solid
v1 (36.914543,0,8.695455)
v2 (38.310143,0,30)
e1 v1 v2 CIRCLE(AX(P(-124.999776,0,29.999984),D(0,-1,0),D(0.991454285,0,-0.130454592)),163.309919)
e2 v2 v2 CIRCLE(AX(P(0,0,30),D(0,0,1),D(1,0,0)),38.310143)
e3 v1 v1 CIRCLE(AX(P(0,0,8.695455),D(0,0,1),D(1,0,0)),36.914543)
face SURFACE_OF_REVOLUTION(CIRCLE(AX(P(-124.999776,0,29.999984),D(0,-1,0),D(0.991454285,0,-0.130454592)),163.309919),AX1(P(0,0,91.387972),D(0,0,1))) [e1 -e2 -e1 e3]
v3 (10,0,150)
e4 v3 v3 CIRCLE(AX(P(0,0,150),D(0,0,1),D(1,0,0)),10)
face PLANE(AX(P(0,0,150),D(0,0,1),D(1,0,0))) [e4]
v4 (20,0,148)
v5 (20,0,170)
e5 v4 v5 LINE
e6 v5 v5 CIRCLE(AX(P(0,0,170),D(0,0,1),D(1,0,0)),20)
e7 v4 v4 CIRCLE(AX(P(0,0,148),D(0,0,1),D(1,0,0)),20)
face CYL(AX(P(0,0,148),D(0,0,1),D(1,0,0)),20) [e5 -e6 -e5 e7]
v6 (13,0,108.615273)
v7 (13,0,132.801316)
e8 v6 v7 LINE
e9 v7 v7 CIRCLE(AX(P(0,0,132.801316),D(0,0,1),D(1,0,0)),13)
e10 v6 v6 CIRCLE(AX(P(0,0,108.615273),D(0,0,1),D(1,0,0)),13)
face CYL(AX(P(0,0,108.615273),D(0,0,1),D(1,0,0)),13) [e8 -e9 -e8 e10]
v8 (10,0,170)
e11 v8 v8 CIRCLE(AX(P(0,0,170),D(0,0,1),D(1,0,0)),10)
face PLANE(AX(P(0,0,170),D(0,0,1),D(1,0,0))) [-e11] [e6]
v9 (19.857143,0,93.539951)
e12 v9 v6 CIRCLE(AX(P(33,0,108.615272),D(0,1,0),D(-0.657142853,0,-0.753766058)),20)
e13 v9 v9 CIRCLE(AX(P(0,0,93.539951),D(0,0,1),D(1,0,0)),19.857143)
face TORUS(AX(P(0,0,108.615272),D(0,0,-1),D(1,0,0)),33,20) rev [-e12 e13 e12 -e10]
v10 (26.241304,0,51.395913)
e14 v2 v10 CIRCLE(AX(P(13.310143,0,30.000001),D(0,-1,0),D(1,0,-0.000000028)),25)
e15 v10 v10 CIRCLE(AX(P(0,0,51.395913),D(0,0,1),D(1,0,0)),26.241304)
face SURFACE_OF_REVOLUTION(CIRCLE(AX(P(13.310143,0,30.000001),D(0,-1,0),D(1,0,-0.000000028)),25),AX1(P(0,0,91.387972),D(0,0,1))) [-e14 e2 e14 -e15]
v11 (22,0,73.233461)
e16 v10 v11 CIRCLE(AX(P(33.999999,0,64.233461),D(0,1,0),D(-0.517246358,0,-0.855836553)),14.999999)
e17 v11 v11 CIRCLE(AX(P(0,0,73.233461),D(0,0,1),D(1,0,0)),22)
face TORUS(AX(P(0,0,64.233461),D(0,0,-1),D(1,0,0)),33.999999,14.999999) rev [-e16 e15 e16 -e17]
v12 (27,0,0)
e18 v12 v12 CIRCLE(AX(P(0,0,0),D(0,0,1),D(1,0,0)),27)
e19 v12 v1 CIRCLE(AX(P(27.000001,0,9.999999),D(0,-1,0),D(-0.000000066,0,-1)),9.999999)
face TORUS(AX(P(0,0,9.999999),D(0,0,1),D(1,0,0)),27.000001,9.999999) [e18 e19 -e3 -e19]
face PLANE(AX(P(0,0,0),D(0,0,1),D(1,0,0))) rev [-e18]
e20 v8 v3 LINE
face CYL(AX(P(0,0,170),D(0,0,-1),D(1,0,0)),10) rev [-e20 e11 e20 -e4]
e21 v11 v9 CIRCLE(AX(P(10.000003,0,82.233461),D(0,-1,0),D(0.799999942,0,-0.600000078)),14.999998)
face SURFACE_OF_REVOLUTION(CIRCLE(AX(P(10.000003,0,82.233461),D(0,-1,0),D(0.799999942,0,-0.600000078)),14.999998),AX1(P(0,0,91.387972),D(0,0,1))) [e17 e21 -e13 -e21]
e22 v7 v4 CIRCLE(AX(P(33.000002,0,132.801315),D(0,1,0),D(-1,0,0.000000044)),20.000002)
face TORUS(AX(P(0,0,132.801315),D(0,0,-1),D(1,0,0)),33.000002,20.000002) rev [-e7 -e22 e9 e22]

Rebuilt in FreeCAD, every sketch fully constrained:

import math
import FreeCAD as App
import Part
import Sketcher

doc = App.newDocument("Part")
body = doc.addObject("PartDesign::Body", "Body")

sketch1 = body.newObject("Sketcher::SketchObject", "Sketch")
sketch1.AttachmentSupport = (doc.getObject("XZ_Plane"), [""])
sketch1.MapMode = "FlatFace"
sketch1.addGeometry([
    Part.LineSegment(App.Vector(0, 150, 0), App.Vector(0, 0, 0)),
    Part.LineSegment(App.Vector(0, 0, 0), App.Vector(27, 0, 0)),
    Part.ArcOfCircle(Part.Circle(App.Vector(27, 10, 0), App.Vector(0, 0, 1), 10), math.radians(-90), math.radians(-7)),
    Part.ArcOfCircle(Part.Circle(App.Vector(-125, 30, 0), App.Vector(0, 0, 1), 163), math.radians(-7.5), math.radians(0)),
    Part.ArcOfCircle(Part.Circle(App.Vector(13, 30, 0), App.Vector(0, 0, 1), 25), math.radians(0), math.radians(59)),
    Part.ArcOfCircle(Part.Circle(App.Vector(34, 64, 0), App.Vector(0, 0, 1), 15), math.radians(143), math.radians(239)),
    Part.ArcOfCircle(Part.Circle(App.Vector(10, 82, 0), App.Vector(0, 0, 1), 15), math.radians(-37), math.radians(49)),
    Part.ArcOfCircle(Part.Circle(App.Vector(33, 109, 0), App.Vector(0, 0, 1), 20), math.radians(180), math.radians(229)),
    Part.LineSegment(App.Vector(13, 109, 0), App.Vector(13, 133, 0)),
    Part.ArcOfCircle(Part.Circle(App.Vector(33, 133, 0), App.Vector(0, 0, 1), 20), math.radians(131), math.radians(180)),
    Part.LineSegment(App.Vector(20, 148, 0), App.Vector(20, 170, 0)),
    Part.LineSegment(App.Vector(20, 170, 0), App.Vector(10, 170, 0)),
    Part.LineSegment(App.Vector(10, 170, 0), App.Vector(10, 150, 0)),
    Part.LineSegment(App.Vector(10, 150, 0), App.Vector(0, 150, 0)),
], False)
sketch1.addConstraint([
    Sketcher.Constraint("Coincident", 0, 2, 1, 1),
    Sketcher.Constraint("Tangent", 1, 2, 2, 1),
    Sketcher.Constraint("Tangent", 2, 2, 3, 1),
    Sketcher.Constraint("Tangent", 3, 2, 4, 1),
    Sketcher.Constraint("Tangent", 4, 2, 5, 2),
    Sketcher.Constraint("Tangent", 5, 1, 6, 1),
    Sketcher.Constraint("Tangent", 6, 2, 7, 2),
    Sketcher.Constraint("Tangent", 7, 1, 8, 1),
    Sketcher.Constraint("Tangent", 8, 2, 9, 2),
    Sketcher.Constraint("Coincident", 9, 1, 10, 1),
    Sketcher.Constraint("Coincident", 10, 2, 11, 1),
    Sketcher.Constraint("Coincident", 11, 2, 12, 1),
    Sketcher.Constraint("Coincident", 12, 2, 13, 1),
    Sketcher.Constraint("Coincident", 13, 2, 0, 1),
    Sketcher.Constraint("Vertical", 0),
    Sketcher.Constraint("Horizontal", 1),
    Sketcher.Constraint("Vertical", 8),
    Sketcher.Constraint("Vertical", 10),
    Sketcher.Constraint("Horizontal", 11),
    Sketcher.Constraint("Vertical", 12),
    Sketcher.Constraint("Horizontal", 13),
    Sketcher.Constraint("Coincident", 0, 2, -1, 1),
    Sketcher.Constraint("Equal", 5, 6),
    Sketcher.Constraint("Equal", 7, 9),
    Sketcher.Constraint("Equal", 11, 13),
    Sketcher.Constraint("Radius", 2, 9.999999),
    Sketcher.Constraint("Radius", 4, 25.0),
    Sketcher.Constraint("Radius", 5, 14.999999),
    Sketcher.Constraint("Radius", 7, 20.0),
    Sketcher.Constraint("DistanceX", 1, 1, 1, 2, 27.0),
    Sketcher.Constraint("DistanceX", 11, 2, 11, 1, 10.0),
    Sketcher.Constraint("DistanceY", 0, 2, 0, 1, 150.0),
    Sketcher.Constraint("DistanceY", 10, 1, 10, 2, 22.0),
    Sketcher.Constraint("DistanceY", 12, 2, 12, 1, 20.0),
    Sketcher.Constraint("DistanceY", -1, 1, 4, 3, 30.000001),
    Sketcher.Constraint("DistanceX", -1, 1, 5, 3, 33.999999),
    Sketcher.Constraint("DistanceX", -1, 1, 7, 3, 33.0),
    Sketcher.Constraint("DistanceX", -1, 1, 5, 1, 22.0),
    Sketcher.Constraint("Radius", 3, 163.309919),
    Sketcher.Constraint("DistanceX", 4, 3, 2, 2, 23.6044),
])
revolution = body.newObject("PartDesign::Revolution", "Revolution")
revolution.Profile = sketch1
revolution.ReferenceAxis = (sketch1, ["V_Axis"])
revolution.Angle = 360

doc.recompute()
